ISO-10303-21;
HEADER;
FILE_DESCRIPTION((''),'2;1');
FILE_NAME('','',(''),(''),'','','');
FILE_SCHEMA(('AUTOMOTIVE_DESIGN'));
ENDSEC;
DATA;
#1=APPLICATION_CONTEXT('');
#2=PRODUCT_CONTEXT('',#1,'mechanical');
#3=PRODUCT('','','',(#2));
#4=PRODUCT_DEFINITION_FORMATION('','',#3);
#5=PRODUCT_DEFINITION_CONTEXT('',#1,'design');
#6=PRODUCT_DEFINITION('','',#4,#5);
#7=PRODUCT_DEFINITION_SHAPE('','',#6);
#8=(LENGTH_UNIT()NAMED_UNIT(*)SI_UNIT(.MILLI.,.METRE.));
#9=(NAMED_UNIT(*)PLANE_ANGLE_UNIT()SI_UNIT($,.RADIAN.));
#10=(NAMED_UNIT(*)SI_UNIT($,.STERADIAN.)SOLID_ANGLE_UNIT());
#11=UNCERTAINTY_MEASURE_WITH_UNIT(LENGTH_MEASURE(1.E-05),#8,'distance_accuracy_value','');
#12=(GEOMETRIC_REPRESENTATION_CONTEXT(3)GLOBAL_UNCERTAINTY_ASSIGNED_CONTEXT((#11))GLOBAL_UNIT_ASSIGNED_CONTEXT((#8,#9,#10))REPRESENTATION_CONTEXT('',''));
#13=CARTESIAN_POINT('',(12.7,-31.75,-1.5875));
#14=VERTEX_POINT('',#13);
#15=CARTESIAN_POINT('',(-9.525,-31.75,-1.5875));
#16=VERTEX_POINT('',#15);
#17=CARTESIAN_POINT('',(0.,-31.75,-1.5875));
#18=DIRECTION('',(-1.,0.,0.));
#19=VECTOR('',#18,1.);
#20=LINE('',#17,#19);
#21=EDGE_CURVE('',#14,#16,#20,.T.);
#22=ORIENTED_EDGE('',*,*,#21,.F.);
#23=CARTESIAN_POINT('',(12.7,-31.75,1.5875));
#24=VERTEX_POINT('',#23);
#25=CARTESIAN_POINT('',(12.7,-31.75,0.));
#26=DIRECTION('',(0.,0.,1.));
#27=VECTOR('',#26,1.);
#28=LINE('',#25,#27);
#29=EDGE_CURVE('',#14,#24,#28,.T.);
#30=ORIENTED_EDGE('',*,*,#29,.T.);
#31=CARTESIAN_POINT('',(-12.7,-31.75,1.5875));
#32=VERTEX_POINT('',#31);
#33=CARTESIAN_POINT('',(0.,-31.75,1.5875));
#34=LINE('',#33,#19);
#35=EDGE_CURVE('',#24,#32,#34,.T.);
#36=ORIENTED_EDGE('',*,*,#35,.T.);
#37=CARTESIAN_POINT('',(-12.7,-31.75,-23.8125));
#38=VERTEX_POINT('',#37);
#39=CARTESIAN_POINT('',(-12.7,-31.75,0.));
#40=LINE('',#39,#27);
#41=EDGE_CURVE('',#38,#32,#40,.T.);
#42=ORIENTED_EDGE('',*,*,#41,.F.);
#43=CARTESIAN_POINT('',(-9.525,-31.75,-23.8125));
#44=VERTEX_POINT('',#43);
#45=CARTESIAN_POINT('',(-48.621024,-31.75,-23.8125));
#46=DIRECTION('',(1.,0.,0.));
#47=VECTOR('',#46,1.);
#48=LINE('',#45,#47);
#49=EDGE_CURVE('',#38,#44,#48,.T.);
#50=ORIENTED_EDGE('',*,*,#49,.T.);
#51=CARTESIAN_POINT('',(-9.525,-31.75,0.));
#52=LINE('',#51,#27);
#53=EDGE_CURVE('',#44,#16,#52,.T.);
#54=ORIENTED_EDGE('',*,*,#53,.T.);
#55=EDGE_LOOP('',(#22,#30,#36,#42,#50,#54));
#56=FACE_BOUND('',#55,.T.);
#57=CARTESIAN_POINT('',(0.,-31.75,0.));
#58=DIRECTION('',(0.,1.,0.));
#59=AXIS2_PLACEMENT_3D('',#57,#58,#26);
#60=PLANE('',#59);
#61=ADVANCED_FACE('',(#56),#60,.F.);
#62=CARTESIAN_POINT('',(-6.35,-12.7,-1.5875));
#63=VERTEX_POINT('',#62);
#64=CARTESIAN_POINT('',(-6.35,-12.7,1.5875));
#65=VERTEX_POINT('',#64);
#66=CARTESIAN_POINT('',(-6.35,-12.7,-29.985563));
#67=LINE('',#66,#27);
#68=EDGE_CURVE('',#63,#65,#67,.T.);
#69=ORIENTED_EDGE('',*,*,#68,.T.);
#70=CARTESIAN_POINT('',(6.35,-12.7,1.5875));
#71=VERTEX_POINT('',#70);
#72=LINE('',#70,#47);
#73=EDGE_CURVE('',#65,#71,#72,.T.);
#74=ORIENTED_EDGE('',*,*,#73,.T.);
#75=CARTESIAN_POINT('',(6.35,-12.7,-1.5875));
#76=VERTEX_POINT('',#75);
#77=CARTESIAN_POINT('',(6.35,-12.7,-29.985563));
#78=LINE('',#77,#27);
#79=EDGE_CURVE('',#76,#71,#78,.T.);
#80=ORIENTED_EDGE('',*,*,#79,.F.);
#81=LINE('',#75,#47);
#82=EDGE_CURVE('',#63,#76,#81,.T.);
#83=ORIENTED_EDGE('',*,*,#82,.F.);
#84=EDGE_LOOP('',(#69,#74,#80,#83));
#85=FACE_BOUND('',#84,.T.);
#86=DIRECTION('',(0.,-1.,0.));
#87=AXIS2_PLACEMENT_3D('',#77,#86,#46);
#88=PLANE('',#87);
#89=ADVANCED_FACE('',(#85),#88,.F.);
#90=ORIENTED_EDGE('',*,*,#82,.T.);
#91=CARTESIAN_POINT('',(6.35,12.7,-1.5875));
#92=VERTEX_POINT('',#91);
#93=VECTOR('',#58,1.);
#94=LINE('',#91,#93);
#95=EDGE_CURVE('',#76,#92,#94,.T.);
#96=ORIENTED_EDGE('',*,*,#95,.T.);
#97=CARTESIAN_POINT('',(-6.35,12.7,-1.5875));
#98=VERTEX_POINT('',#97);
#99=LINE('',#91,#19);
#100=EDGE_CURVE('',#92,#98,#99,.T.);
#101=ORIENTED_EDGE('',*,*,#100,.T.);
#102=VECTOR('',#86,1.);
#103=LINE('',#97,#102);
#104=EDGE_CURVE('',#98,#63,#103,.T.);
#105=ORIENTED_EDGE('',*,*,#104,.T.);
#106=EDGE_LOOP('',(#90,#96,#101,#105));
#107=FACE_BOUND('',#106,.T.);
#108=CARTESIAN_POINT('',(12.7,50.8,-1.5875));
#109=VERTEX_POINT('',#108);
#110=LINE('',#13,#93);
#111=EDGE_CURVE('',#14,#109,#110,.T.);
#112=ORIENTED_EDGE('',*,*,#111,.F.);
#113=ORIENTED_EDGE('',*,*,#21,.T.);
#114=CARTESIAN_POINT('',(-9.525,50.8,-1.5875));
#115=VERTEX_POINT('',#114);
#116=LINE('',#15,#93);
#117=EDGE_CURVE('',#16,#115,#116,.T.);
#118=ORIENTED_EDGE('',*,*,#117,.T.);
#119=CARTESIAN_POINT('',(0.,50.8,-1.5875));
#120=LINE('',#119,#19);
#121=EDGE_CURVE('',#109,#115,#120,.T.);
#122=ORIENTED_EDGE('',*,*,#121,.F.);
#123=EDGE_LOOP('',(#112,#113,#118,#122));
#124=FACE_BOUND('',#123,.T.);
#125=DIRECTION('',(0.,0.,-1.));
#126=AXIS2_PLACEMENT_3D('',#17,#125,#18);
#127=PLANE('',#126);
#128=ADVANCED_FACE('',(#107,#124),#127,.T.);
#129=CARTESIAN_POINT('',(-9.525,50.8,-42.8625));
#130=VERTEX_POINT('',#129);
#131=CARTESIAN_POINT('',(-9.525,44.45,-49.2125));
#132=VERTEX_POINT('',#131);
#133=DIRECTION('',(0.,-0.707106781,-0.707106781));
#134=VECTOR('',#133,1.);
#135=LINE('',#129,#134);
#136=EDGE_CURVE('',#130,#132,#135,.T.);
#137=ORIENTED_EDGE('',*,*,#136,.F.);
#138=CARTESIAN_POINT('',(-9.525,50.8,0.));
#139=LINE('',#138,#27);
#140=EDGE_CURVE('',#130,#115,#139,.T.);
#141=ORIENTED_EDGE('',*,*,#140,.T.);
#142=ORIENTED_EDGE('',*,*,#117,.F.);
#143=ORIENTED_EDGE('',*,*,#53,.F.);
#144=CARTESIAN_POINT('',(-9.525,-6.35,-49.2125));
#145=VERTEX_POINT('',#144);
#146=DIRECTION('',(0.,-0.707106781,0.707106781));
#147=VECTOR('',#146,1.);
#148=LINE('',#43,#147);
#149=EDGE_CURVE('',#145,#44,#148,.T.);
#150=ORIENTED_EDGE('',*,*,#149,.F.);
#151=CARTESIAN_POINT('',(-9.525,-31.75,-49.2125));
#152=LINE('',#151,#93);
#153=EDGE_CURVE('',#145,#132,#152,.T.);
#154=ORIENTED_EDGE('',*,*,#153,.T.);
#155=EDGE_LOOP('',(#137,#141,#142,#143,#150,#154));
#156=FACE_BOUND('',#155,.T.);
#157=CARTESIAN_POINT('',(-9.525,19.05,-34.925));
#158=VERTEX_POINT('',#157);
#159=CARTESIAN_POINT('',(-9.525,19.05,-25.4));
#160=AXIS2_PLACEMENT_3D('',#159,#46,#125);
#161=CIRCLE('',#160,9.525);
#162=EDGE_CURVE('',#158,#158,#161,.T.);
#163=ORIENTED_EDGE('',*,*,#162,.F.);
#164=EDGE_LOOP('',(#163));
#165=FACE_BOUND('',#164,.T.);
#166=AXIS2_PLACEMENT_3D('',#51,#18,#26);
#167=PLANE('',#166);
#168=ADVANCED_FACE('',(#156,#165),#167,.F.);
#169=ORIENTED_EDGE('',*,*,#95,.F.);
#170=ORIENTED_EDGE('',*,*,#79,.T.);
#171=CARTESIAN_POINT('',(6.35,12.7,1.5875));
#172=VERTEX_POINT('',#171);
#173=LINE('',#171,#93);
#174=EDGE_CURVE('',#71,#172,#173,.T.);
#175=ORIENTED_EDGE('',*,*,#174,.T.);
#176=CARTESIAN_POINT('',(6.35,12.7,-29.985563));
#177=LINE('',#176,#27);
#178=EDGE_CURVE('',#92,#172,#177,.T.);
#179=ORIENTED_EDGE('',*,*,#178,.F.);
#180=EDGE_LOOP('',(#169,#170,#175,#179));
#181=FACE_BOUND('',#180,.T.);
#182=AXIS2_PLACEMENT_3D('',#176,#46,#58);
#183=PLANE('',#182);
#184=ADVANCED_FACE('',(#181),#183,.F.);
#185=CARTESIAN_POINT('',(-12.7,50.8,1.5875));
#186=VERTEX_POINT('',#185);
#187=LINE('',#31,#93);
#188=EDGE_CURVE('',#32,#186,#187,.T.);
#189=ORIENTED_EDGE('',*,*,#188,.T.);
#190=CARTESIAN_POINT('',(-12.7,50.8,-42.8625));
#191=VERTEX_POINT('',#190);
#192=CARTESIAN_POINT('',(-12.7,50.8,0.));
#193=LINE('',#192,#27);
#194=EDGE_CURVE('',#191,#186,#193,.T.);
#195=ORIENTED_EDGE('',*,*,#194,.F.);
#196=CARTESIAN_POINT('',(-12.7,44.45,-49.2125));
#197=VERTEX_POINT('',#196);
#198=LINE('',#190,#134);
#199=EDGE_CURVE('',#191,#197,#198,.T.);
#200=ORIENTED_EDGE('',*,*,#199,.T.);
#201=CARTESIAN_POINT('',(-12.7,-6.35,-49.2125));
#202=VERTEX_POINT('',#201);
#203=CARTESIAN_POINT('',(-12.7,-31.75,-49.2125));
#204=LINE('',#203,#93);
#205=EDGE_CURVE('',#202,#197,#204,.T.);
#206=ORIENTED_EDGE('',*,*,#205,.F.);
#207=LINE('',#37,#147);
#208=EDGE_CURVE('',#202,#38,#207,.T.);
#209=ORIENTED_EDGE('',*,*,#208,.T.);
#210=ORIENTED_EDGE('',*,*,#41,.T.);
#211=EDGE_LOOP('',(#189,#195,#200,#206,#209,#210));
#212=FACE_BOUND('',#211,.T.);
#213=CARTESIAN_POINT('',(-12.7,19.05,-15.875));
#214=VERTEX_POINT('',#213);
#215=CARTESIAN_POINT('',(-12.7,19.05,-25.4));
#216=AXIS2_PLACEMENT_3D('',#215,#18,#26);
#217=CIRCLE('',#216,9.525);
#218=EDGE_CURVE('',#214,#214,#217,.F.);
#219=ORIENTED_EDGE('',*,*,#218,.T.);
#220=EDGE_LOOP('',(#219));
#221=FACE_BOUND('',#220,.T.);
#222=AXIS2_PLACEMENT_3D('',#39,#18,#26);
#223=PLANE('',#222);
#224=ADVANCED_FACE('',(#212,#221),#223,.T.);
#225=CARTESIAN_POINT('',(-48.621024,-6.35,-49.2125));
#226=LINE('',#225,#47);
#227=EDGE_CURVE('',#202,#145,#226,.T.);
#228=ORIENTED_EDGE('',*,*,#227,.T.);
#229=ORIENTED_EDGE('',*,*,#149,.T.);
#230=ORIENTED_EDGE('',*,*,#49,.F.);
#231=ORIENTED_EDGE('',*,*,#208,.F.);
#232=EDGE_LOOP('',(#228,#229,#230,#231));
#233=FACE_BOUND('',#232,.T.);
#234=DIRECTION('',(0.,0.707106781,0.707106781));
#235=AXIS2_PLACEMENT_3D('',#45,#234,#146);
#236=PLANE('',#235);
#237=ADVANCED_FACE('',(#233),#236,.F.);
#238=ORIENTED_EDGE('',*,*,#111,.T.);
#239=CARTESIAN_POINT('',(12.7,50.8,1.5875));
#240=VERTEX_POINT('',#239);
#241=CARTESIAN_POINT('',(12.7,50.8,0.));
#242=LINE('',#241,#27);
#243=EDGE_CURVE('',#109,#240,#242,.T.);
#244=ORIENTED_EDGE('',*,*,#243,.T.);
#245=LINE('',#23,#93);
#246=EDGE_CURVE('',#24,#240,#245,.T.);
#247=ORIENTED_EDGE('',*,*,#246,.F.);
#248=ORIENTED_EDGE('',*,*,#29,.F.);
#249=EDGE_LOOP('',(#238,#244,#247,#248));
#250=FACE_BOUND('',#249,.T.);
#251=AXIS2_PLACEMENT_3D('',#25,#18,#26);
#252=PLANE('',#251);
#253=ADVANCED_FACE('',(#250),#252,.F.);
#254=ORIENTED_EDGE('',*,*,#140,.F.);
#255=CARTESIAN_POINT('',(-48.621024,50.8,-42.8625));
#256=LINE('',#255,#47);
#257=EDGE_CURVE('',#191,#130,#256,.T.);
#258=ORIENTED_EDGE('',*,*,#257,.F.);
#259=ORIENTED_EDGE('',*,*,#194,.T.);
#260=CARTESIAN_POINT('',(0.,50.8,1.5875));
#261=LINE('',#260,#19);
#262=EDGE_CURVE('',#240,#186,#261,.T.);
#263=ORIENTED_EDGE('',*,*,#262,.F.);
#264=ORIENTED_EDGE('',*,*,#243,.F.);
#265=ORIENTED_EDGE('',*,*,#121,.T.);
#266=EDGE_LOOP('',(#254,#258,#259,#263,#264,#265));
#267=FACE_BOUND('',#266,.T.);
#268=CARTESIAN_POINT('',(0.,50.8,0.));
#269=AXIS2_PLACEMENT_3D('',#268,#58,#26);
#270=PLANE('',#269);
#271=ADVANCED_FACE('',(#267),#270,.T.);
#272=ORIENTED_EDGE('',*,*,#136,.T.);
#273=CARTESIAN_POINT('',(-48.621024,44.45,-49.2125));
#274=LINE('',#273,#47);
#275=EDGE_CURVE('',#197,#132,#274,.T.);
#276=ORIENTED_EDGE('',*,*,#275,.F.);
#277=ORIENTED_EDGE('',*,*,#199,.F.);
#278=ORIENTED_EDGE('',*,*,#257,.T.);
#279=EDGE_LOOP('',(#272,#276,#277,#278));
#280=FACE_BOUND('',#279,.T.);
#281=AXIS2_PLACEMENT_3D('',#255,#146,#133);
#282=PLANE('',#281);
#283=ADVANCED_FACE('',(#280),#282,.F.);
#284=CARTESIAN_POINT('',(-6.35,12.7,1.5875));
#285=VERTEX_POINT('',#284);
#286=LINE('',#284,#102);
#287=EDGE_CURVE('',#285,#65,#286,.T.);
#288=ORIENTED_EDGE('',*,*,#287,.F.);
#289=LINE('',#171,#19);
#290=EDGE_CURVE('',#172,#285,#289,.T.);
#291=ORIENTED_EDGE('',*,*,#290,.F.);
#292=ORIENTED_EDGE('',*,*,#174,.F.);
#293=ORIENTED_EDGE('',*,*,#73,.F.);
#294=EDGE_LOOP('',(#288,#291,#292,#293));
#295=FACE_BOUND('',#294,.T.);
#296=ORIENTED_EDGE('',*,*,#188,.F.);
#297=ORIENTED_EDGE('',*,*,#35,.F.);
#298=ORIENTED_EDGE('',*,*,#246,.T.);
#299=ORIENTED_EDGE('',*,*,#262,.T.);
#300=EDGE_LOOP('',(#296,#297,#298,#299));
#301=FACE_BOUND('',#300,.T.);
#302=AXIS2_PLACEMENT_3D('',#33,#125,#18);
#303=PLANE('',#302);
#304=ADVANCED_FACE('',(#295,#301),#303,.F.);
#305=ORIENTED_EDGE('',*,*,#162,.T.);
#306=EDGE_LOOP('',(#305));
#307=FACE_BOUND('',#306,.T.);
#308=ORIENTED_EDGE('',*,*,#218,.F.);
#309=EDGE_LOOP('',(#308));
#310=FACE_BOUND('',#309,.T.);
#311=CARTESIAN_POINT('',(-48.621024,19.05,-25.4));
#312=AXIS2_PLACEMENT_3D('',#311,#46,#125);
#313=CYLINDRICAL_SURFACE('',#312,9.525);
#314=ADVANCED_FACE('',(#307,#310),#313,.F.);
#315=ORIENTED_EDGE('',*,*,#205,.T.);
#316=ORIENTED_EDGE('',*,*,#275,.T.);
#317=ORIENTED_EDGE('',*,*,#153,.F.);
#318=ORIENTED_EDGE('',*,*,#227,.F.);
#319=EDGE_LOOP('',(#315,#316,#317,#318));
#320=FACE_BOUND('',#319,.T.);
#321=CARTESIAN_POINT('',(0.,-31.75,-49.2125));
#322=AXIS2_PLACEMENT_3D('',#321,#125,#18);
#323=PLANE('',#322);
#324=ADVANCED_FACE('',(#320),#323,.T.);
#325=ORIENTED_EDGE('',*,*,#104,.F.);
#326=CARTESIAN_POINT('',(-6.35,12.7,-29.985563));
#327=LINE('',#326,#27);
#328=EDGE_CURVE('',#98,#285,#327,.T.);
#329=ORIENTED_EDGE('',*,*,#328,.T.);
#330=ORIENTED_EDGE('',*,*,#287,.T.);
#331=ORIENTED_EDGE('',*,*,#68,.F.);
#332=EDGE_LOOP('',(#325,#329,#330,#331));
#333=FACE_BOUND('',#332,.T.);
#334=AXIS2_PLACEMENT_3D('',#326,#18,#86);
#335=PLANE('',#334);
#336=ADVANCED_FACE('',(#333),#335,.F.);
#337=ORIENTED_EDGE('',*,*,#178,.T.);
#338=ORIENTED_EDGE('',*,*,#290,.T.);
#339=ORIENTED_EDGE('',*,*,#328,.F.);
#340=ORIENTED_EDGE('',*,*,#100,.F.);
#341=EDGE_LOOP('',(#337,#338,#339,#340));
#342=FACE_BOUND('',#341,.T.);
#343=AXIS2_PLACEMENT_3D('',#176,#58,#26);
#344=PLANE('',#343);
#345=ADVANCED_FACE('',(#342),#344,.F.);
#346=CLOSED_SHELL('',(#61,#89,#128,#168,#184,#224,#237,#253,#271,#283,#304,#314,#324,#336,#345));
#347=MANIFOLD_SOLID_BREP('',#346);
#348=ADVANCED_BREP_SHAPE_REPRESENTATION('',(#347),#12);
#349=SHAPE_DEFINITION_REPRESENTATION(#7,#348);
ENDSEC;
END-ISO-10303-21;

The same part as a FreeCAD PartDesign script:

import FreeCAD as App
import Part
import Sketcher
Q = App.Units.Quantity

doc = App.newDocument("Part")
body = doc.addObject("PartDesign::Body", "Body")

sketch1 = doc.addObject("Sketcher::SketchObject", "Sketch")
body.addObject(sketch1)
sketch1.AttachmentSupport = (doc.XZ_Plane, [""])
sketch1.MapMode = "FlatFace"
sketch1.addGeometry([
    Part.LineSegment(App.Vector(12.7, 1.6, 0), App.Vector(12.7, -1.6, 0)),
    Part.LineSegment(App.Vector(12.7, -1.6, 0), App.Vector(-9.5, -1.6, 0)),
    Part.LineSegment(App.Vector(-9.5, -1.6, 0), App.Vector(-9.5, -49.2, 0)),
    Part.LineSegment(App.Vector(-9.5, -49.2, 0), App.Vector(-12.7, -49.2, 0)),
    Part.LineSegment(App.Vector(-12.7, -49.2, 0), App.Vector(-12.7, 1.6, 0)),
    Part.LineSegment(App.Vector(-12.7, 1.6, 0), App.Vector(12.7, 1.6, 0)),
], False)
sketch1.addConstraint([
    Sketcher.Constraint("Coincident", 0, 2, 1, 1),
    Sketcher.Constraint("Coincident", 1, 2, 2, 1),
    Sketcher.Constraint("Coincident", 2, 2, 3, 1),
    Sketcher.Constraint("Coincident", 3, 2, 4, 1),
    Sketcher.Constraint("Coincident", 4, 2, 5, 1),
    Sketcher.Constraint("Coincident", 5, 2, 0, 1),
    Sketcher.Constraint("Vertical", 0),
    Sketcher.Constraint("Horizontal", 1),
    Sketcher.Constraint("Vertical", 2),
    Sketcher.Constraint("Horizontal", 3),
    Sketcher.Constraint("Vertical", 4),
    Sketcher.Constraint("Horizontal", 5),
    Sketcher.Constraint("Symmetric", 0, 2, 4, 2, -1, 1),
    Sketcher.Constraint("Equal", 3, 0),
    Sketcher.Constraint("DistanceX", 5, 1, 5, 2, Q("1 in")),
    Sketcher.Constraint("DistanceY", 4, 1, 4, 2, Q("2 in")),
    Sketcher.Constraint("DistanceX", 1, 2, 1, 1, Q("0.875 in")),
])
pad1 = doc.addObject("PartDesign::Pad", "Pad")
body.addObject(pad1)
pad1.Profile = sketch1
pad1.Type = "TwoLengths"
pad1.Length = Q("2 in")
pad1.Length2 = Q("1.25 in")
pad1.Reversed = True

sketch2 = doc.addObject("Sketcher::SketchObject", "Sketch001")
body.addObject(sketch2)
sketch2.AttachmentSupport = (doc.YZ_Plane, [""])
sketch2.MapMode = "FlatFace"
sketch2.AttachmentOffset = App.Placement(App.Vector(0, 0, -0.375 * 25.4), App.Rotation())
sketch2.addGeometry([
    Part.Circle(App.Vector(19, -25, 0), App.Vector(0, 0, 1), 10),
    Part.LineSegment(App.Vector(51, -43, 0), App.Vector(44, -49, 0)),
    Part.LineSegment(App.Vector(44, -49, 0), App.Vector(51, -49, 0)),
    Part.LineSegment(App.Vector(51, -49, 0), App.Vector(51, -43, 0)),
    Part.LineSegment(App.Vector(-32, -24, 0), App.Vector(-32, -49, 0)),
    Part.LineSegment(App.Vector(-32, -49, 0), App.Vector(-6, -49, 0)),
    Part.LineSegment(App.Vector(-6, -49, 0), App.Vector(-32, -24, 0)),
], False)
sketch2.addConstraint([
    Sketcher.Constraint("Coincident", 1, 2, 2, 1),
    Sketcher.Constraint("Coincident", 2, 2, 3, 1),
    Sketcher.Constraint("Coincident", 3, 2, 1, 1),
    Sketcher.Constraint("Coincident", 4, 2, 5, 1),
    Sketcher.Constraint("Coincident", 5, 2, 6, 1),
    Sketcher.Constraint("Coincident", 6, 2, 4, 1),
    Sketcher.Constraint("Horizontal", 2),
    Sketcher.Constraint("Vertical", 3),
    Sketcher.Constraint("Vertical", 4),
    Sketcher.Constraint("Horizontal", 5),
    Sketcher.Constraint("Perpendicular", 1, 6),
    Sketcher.Constraint("Horizontal", 2, 2, 4, 2),
    Sketcher.Constraint("Equal", 2, 3),
    Sketcher.Constraint("Diameter", 0, Q("0.75 in")),
    Sketcher.Constraint("DistanceX", 5, 1, 5, 2, Q("1 in")),
    Sketcher.Constraint("DistanceY", 0, 3, -1, 1, Q("1 in")),
    Sketcher.Constraint("DistanceX", -1, 1, 2, 2, Q("2 in")),
    Sketcher.Constraint("DistanceX", 0, 3, 1, 2, Q("1 in")),
    Sketcher.Constraint("DistanceX", 4, 2, 0, 3, Q("2 in")),
    Sketcher.Constraint("DistanceX", 2, 1, 2, 2, Q("0.25 in")),
    Sketcher.Constraint("DistanceY", 1, 2, -1, 1, Q("1.9375 in")),
])
pocket1 = doc.addObject("PartDesign::Pocket", "Pocket")
body.addObject(pocket1)
pocket1.Profile = sketch2
pocket1.Length = Q("0.125 in")

sketch3 = doc.addObject("Sketcher::SketchObject", "Sketch002")
body.addObject(sketch3)
sketch3.AttachmentSupport = (doc.XY_Plane, [""])
sketch3.MapMode = "FlatFace"
sketch3.AttachmentOffset = App.Placement(App.Vector(0, 0, 0.0625 * 25.4), App.Rotation())
sketch3.addGeometry([
    Part.LineSegment(App.Vector(-6, 13, 0), App.Vector(-6, -13, 0)),
    Part.LineSegment(App.Vector(-6, -13, 0), App.Vector(6, -13, 0)),
    Part.LineSegment(App.Vector(6, -13, 0), App.Vector(6, 13, 0)),
    Part.LineSegment(App.Vector(6, 13, 0), App.Vector(-6, 13, 0)),
], False)
sketch3.addConstraint([
    Sketcher.Constraint("Coincident", 0, 2, 1, 1),
    Sketcher.Constraint("Coincident", 1, 2, 2, 1),
    Sketcher.Constraint("Coincident", 2, 2, 3, 1),
    Sketcher.Constraint("Coincident", 3, 2, 0, 1),
    Sketcher.Constraint("Vertical", 0),
    Sketcher.Constraint("Horizontal", 1),
    Sketcher.Constraint("Vertical", 2),
    Sketcher.Constraint("Horizontal", 3),
    Sketcher.Constraint("Symmetric", 0, 2, 2, 2, -1, 1),
    Sketcher.Constraint("DistanceY", 0, 2, 0, 1, Q("1 in")),
    Sketcher.Constraint("DistanceX", 1, 1, 1, 2, Q("0.5 in")),
])
pocket2 = doc.addObject("PartDesign::Pocket", "Pocket001")
body.addObject(pocket2)
pocket2.Profile = sketch3
pocket2.Length = Q("0.125 in")

doc.recompute()
